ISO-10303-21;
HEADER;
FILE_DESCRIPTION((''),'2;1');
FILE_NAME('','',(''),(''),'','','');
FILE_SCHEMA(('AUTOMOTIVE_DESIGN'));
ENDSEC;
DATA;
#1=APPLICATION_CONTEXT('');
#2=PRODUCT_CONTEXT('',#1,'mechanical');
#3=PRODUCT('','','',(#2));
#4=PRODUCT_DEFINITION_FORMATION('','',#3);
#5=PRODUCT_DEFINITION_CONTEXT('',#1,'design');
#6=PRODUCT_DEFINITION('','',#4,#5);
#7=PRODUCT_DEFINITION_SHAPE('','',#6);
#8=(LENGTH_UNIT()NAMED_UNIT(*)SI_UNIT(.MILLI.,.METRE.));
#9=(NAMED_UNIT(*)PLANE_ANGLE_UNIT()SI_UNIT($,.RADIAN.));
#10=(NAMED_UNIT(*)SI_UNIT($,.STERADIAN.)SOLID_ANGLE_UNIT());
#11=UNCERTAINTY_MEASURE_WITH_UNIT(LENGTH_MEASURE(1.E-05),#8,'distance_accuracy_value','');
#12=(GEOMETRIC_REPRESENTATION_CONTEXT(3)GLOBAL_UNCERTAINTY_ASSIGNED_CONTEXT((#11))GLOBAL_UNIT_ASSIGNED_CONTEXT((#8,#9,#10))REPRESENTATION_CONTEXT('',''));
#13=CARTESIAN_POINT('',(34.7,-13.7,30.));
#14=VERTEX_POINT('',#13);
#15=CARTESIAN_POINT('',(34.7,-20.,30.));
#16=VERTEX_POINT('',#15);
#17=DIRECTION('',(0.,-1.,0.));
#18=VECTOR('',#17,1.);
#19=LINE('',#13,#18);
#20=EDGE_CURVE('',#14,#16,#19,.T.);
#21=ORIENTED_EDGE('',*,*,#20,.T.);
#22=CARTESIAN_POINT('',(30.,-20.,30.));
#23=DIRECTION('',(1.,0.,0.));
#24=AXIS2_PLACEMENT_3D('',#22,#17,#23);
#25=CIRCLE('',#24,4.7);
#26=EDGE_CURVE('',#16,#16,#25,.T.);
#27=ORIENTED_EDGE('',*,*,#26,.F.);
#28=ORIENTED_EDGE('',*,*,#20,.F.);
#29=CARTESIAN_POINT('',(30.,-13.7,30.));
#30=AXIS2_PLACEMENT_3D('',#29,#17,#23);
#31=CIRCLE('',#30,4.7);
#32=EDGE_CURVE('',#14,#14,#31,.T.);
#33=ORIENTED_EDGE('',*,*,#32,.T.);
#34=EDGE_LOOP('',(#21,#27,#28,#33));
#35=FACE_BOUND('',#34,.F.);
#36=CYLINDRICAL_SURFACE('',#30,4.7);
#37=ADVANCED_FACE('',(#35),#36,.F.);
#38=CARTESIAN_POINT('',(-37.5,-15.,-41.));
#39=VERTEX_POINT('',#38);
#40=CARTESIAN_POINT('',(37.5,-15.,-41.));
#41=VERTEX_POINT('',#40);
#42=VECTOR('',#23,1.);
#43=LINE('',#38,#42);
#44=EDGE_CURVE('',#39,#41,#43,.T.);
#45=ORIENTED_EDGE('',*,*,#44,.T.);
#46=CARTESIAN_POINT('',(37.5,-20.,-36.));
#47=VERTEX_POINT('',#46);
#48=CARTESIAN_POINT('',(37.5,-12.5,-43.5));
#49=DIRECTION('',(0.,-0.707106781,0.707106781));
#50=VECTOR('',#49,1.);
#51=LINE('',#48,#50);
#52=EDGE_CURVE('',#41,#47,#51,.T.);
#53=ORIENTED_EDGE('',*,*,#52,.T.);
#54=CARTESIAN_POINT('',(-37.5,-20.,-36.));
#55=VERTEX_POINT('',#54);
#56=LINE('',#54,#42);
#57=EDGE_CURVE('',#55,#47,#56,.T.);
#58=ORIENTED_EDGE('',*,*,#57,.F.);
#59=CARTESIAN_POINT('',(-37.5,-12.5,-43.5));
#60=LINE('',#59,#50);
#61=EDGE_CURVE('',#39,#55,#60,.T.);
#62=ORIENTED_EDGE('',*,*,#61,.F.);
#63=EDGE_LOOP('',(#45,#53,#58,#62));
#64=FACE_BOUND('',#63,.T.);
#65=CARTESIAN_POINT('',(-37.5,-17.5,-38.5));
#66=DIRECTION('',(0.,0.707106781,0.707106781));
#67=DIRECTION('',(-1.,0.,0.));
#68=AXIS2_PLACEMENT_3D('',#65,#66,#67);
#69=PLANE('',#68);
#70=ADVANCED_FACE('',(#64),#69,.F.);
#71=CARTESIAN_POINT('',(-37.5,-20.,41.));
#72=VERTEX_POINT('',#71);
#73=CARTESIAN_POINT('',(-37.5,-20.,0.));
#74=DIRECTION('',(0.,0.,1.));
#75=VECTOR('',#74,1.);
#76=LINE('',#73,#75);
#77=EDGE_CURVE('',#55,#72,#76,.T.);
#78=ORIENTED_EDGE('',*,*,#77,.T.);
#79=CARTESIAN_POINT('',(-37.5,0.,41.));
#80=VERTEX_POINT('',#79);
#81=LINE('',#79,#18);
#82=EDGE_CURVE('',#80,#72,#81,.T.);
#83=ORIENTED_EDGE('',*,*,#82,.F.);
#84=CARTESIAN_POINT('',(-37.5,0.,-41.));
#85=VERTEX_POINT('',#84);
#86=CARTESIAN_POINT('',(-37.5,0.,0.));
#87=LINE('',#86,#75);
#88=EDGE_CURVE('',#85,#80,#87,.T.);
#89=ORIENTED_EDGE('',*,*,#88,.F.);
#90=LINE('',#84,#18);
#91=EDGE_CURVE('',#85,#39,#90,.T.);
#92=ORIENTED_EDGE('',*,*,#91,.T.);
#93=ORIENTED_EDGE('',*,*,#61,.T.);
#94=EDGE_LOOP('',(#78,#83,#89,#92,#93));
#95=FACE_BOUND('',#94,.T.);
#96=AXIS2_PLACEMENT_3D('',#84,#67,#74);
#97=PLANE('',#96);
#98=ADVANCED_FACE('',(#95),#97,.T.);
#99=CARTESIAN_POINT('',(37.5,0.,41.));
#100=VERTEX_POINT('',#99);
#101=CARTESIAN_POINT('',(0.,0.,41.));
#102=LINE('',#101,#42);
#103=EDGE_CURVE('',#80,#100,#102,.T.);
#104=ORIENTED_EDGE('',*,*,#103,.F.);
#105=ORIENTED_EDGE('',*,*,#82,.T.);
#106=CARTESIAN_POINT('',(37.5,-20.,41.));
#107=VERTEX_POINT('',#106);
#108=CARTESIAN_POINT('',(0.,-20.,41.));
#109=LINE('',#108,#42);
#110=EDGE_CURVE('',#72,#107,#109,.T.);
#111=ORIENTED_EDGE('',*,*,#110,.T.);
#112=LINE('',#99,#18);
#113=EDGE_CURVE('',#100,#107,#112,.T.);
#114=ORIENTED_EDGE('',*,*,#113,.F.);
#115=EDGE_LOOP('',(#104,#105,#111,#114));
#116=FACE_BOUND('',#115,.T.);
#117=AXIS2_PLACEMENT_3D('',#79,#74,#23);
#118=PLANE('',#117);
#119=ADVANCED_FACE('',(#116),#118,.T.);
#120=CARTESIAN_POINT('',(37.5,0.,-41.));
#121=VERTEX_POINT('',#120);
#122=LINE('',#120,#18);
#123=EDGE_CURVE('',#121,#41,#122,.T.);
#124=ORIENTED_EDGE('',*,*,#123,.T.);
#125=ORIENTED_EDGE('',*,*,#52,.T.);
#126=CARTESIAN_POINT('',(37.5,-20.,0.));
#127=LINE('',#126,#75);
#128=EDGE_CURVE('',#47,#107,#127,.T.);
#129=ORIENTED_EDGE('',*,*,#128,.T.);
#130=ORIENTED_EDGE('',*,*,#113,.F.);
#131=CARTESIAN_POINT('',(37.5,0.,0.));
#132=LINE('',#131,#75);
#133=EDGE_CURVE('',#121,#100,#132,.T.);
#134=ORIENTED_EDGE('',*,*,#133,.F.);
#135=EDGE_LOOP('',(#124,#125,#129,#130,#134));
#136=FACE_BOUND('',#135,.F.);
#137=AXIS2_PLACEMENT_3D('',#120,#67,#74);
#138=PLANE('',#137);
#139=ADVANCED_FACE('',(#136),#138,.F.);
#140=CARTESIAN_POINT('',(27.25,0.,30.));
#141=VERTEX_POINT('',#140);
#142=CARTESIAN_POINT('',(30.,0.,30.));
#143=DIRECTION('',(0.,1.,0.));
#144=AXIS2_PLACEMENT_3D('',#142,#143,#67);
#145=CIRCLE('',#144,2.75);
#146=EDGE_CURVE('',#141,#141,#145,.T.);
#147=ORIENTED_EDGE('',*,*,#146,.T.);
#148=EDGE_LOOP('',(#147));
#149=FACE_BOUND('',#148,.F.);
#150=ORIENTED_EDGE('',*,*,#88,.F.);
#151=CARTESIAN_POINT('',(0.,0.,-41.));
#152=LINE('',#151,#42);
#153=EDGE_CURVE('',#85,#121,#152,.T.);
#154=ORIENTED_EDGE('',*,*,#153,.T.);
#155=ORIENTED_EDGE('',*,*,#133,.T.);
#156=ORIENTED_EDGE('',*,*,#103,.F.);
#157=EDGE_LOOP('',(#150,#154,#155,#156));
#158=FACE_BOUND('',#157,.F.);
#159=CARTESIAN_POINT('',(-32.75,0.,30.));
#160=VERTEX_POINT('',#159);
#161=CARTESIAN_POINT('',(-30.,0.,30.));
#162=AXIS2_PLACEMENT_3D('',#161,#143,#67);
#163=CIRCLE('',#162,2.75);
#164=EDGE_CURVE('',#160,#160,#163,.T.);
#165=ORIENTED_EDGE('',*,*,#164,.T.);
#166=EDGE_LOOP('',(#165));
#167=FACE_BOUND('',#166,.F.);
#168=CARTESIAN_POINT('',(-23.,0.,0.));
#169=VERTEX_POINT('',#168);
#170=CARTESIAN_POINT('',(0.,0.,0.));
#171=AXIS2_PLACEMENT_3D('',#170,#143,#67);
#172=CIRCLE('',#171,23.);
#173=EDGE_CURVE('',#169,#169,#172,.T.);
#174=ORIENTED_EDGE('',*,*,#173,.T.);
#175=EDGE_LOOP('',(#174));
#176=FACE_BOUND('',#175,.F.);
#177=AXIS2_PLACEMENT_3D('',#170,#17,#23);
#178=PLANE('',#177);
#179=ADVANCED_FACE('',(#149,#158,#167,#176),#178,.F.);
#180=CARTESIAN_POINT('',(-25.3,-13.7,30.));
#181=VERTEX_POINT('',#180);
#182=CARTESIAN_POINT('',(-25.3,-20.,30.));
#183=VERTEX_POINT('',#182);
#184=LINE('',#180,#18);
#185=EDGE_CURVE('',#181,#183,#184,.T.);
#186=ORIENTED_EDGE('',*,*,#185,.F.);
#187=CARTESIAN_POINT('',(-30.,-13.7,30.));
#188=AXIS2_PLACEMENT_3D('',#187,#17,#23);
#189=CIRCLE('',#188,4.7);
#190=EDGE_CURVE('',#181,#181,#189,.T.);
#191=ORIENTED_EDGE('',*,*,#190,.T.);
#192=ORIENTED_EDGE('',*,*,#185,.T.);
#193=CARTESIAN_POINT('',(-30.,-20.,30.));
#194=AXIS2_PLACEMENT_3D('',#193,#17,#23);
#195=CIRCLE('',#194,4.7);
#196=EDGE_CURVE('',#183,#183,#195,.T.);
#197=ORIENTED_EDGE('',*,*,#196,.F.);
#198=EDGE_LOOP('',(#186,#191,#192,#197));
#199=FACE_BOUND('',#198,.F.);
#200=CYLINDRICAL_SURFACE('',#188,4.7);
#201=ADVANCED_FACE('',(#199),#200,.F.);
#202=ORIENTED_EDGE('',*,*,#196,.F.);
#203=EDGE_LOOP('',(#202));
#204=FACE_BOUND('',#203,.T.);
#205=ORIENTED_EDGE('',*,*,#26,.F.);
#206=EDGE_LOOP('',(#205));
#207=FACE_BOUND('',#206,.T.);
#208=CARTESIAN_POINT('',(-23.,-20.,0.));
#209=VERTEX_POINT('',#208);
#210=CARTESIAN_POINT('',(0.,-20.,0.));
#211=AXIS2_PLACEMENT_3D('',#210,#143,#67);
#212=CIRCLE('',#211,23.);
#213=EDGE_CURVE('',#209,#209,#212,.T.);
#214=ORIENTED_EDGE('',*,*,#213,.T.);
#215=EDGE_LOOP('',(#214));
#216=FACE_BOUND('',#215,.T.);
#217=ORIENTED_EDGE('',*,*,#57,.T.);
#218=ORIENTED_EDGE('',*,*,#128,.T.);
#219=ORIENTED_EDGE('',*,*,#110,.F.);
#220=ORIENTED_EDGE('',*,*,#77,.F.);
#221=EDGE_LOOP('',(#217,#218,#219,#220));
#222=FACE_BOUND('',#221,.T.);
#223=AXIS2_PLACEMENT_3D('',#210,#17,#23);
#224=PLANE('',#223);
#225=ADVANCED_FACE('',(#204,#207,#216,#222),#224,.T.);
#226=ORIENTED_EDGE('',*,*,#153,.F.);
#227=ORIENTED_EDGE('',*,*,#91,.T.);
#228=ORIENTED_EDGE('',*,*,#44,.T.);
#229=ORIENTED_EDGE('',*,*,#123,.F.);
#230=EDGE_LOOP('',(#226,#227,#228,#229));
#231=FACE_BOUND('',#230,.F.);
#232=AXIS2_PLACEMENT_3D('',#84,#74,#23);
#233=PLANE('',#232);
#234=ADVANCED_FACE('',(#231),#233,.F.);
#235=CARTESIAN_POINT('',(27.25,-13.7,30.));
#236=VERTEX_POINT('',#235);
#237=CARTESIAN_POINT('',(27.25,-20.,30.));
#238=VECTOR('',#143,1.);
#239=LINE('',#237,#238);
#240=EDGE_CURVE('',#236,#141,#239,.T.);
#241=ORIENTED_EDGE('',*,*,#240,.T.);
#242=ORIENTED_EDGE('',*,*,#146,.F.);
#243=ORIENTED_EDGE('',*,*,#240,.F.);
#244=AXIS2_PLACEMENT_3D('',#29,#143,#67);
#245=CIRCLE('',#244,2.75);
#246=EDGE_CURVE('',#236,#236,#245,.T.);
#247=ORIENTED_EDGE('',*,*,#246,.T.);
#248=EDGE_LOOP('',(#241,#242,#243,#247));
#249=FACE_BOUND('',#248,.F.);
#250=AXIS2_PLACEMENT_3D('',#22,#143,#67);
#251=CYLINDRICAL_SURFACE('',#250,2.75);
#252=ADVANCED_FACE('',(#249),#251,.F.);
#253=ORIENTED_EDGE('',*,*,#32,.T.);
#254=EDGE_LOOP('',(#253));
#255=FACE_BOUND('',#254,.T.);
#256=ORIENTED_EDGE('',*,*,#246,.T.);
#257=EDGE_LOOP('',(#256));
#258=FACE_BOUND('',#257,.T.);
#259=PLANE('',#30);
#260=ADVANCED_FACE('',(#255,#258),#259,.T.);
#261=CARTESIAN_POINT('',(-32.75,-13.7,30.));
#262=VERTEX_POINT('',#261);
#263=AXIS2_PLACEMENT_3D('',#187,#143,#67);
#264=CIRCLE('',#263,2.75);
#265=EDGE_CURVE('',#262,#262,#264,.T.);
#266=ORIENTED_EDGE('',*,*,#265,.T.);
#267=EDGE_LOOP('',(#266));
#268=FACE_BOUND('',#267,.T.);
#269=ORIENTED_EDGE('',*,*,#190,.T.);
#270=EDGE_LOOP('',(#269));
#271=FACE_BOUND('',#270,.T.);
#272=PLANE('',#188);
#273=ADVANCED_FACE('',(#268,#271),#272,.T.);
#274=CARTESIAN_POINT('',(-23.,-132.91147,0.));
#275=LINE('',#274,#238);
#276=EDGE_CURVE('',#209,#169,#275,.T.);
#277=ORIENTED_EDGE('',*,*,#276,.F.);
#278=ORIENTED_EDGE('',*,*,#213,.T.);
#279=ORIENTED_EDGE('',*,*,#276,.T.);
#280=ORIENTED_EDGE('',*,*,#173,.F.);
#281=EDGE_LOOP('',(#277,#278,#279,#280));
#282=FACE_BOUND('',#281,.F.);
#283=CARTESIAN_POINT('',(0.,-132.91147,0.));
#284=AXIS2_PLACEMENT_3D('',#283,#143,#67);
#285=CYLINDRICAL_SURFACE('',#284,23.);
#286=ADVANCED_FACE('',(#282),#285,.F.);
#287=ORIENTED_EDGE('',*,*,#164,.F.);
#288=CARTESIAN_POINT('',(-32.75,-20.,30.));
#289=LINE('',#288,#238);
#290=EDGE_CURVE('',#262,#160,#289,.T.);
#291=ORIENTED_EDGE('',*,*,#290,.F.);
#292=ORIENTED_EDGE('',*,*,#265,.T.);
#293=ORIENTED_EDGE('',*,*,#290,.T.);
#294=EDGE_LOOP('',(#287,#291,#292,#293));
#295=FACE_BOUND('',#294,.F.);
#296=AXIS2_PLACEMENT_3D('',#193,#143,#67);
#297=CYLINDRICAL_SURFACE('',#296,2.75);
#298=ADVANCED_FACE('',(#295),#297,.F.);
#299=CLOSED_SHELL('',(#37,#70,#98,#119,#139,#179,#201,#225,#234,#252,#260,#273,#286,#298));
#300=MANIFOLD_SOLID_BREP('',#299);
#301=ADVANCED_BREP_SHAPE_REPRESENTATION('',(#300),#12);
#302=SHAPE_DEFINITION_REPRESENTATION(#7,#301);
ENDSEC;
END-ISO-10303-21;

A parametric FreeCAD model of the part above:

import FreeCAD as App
import Part
import Sketcher
from FreeCAD import Vector
Q = App.Units.Quantity


def edges_at(feature, points):
    """Names of the edges that pass closest to the given points."""
    edges = feature.Shape.Edges
    near = lambda p: min(range(len(edges)), key=lambda i: edges[i].distToShape(Part.Vertex(*p))[0])
    return sorted({f"Edge{near(p) + 1}" for p in points})

doc = App.newDocument("Part")
body = doc.addObject("PartDesign::Body", "Body")

# Sketch on XZ plane
sketch1 = body.newObject("Sketcher::SketchObject", "Sketch")
sketch1.AttachmentSupport = (doc.getObject("XZ_Plane"), [""])
sketch1.MapMode = "FlatFace"
sketch1.addGeometry(Part.LineSegment(Vector(-38, 41, 0), Vector(-38, -41, 0)), False)
sketch1.addGeometry(Part.LineSegment(Vector(-38, -41, 0), Vector(38, -41, 0)), False)
sketch1.addGeometry(Part.LineSegment(Vector(38, -41, 0), Vector(38, 41, 0)), False)
sketch1.addGeometry(Part.LineSegment(Vector(38, 41, 0), Vector(-38, 41, 0)), False)
sketch1.addConstraint(Sketcher.Constraint("Coincident", 0, 2, 1, 1))
sketch1.addConstraint(Sketcher.Constraint("Coincident", 1, 2, 2, 1))
sketch1.addConstraint(Sketcher.Constraint("Coincident", 2, 2, 3, 1))
sketch1.addConstraint(Sketcher.Constraint("Coincident", 3, 2, 0, 1))
sketch1.addConstraint(Sketcher.Constraint("Vertical", 0))
sketch1.addConstraint(Sketcher.Constraint("Horizontal", 1))
sketch1.addConstraint(Sketcher.Constraint("Vertical", 2))
sketch1.addConstraint(Sketcher.Constraint("Horizontal", 3))
sketch1.addConstraint(Sketcher.Constraint("Symmetric", 0, 2, 2, 2, -1, 1))
sketch1.addConstraint(Sketcher.Constraint("DistanceX", 1, 1, 1, 2, Q("75 mm")))
sketch1.addConstraint(Sketcher.Constraint("DistanceY", 0, 2, 0, 1, Q("82 mm")))
pad1 = body.newObject("PartDesign::Pad", "Pad")
pad1.Profile = sketch1
pad1.Length = 20

# Sketch on XZ plane
sketch2 = body.newObject("Sketcher::SketchObject", "Sketch001")
sketch2.AttachmentSupport = (doc.getObject("XZ_Plane"), [""])
sketch2.MapMode = "FlatFace"
sketch2.AttachmentOffset = App.Placement(Vector(0, 0, 20), App.Rotation())
sketch2.addGeometry(Part.Circle(Vector(0, 0, 0), Vector(0, 0, 1), 23), False)
sketch2.addConstraint(Sketcher.Constraint("Coincident", 0, 3, -1, 1))
sketch2.addConstraint(Sketcher.Constraint("Diameter", 0, Q("46 mm")))
doc.recompute()
hole = body.newObject("PartDesign::Hole", "Hole")
hole.Profile = sketch2
hole.ThreadType = "None"
hole.Diameter = 46
hole.DepthType = "ThroughAll"

# Sketch on XZ plane
sketch3 = body.newObject("Sketcher::SketchObject", "Sketch002")
sketch3.AttachmentSupport = (doc.getObject("XZ_Plane"), [""])
sketch3.MapMode = "FlatFace"
sketch3.AttachmentOffset = App.Placement(Vector(0, 0, 20), App.Rotation())
sketch3.addGeometry(Part.Circle(Vector(-30, 30, 0), Vector(0, 0, 1), 2.8), False)
sketch3.addGeometry(Part.Circle(Vector(30, 30, 0), Vector(0, 0, 1), 2.8), False)
sketch3.addConstraint(Sketcher.Constraint("Equal", 0, 1))
sketch3.addConstraint(Sketcher.Constraint("Symmetric", 0, 3, 1, 3, -2))
sketch3.addConstraint(Sketcher.Constraint("Diameter", 0, Q("5.5 mm")))
sketch3.addConstraint(Sketcher.Constraint("DistanceX", 0, 3, -1, 1, Q("30 mm")))
sketch3.addConstraint(Sketcher.Constraint("DistanceY", -1, 1, 0, 3, Q("30 mm")))
doc.recompute()
hole2 = body.newObject("PartDesign::Hole", "Hole001")
hole2.Profile = sketch3
hole2.ThreadType = "None"
hole2.Diameter = 5.5
hole2.DepthType = "ThroughAll"
hole2.HoleCutType = "Counterbore"
hole2.HoleCutDiameter = 9.4
hole2.HoleCutDepth = 6.3
doc.recompute()

chamfer = body.newObject("PartDesign::Chamfer", "Chamfer")
chamfer.Base = (hole2, edges_at(hole2, [(0, -20, -41)]))
chamfer.Size = 5

doc.recompute()
